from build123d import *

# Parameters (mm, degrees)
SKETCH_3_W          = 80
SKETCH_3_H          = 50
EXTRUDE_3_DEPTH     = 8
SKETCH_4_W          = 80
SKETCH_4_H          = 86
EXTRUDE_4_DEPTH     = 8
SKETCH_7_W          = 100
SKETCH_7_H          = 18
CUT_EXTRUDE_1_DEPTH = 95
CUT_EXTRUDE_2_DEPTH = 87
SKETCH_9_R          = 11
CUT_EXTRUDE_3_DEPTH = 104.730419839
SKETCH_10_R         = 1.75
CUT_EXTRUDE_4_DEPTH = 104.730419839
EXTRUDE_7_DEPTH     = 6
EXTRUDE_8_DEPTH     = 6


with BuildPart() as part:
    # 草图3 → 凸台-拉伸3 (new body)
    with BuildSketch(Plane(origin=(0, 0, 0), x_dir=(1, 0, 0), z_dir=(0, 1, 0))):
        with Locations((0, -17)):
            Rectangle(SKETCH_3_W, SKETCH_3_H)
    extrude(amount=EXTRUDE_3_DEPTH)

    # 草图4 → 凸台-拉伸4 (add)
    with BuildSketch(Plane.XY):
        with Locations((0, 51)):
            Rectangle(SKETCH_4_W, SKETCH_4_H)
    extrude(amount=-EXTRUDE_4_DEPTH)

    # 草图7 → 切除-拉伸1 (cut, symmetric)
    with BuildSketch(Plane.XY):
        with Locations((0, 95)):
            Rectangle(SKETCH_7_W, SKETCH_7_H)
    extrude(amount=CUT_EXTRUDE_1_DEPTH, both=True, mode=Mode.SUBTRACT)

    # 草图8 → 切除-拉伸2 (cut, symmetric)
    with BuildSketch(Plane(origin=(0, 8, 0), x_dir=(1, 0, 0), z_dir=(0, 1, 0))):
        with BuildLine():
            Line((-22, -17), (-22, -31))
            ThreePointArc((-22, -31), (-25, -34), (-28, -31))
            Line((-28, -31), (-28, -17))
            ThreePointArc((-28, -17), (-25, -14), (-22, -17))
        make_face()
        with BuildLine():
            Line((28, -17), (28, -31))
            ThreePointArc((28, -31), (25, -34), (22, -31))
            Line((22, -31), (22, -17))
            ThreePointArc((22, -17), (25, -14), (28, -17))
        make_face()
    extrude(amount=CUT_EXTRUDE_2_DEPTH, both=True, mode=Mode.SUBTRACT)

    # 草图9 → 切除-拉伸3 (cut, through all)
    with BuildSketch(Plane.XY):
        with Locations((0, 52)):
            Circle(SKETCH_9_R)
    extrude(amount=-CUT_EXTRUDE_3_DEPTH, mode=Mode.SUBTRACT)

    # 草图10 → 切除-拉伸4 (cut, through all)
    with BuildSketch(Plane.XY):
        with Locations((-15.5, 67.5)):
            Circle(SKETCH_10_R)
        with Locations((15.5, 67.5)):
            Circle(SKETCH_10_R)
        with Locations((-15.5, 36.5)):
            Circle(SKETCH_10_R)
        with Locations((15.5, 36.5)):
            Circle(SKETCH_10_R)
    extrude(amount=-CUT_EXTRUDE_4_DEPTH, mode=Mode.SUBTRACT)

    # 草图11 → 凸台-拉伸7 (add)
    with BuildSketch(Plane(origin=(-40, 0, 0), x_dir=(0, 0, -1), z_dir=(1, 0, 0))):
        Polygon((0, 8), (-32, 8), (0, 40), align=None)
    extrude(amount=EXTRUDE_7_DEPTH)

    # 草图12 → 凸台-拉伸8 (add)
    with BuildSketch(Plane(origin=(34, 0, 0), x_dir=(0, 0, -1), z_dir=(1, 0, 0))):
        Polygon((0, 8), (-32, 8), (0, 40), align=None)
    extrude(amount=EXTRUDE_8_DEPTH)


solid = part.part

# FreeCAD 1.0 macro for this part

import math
import FreeCAD as App
import Part
import Sketcher

doc = App.newDocument("Part")
body = doc.addObject("PartDesign::Body", "Body")

# Sketch on XZ plane
sketch1 = body.newObject("Sketcher::SketchObject", "Sketch")
sketch1.AttachmentSupport = (doc.getObject("XZ_Plane"), [""])
sketch1.MapMode = "FlatFace"
sketch1.addGeometry([
    Part.LineSegment(App.Vector(-40, -8, 0), App.Vector(-40, 42, 0)),
    Part.LineSegment(App.Vector(-40, 42, 0), App.Vector(40, 42, 0)),
    Part.LineSegment(App.Vector(40, 42, 0), App.Vector(40, -8, 0)),
    Part.LineSegment(App.Vector(40, -8, 0), App.Vector(-40, -8, 0)),
], False)
sketch1.addConstraint([
    Sketcher.Constraint("Coincident", 0, 2, 1, 1),
    Sketcher.Constraint("Coincident", 1, 2, 2, 1),
    Sketcher.Constraint("Coincident", 2, 2, 3, 1),
    Sketcher.Constraint("Coincident", 3, 2, 0, 1),
    Sketcher.Constraint("Vertical", 0),
    Sketcher.Constraint("Horizontal", 1),
    Sketcher.Constraint("Vertical", 2),
    Sketcher.Constraint("Horizontal", 3),
    Sketcher.Constraint("DistanceX", 1, 1, 1, 2, 80.0),
    Sketcher.Constraint("DistanceY", 0, 1, 0, 2, 50.0),
    Sketcher.Constraint("DistanceX", 0, 2, -1, 1, 40.0),
    Sketcher.Constraint("DistanceY", -1, 1, 0, 2, 42.0),
])
pad1 = body.newObject("PartDesign::Pad", "Pad")
pad1.Profile = sketch1
pad1.Length = 8
pad1.Reversed = True

# Sketch on XY plane
sketch2 = body.newObject("Sketcher::SketchObject", "Sketch001")
sketch2.AttachmentSupport = (doc.getObject("XY_Plane"), [""])
sketch2.MapMode = "FlatFace"
sketch2.addGeometry([
    Part.LineSegment(App.Vector(-40, 94, 0), App.Vector(-40, 8, 0)),
    Part.LineSegment(App.Vector(-40, 8, 0), App.Vector(40, 8, 0)),
    Part.LineSegment(App.Vector(40, 8, 0), App.Vector(40, 94, 0)),
    Part.LineSegment(App.Vector(40, 94, 0), App.Vector(-40, 94, 0)),
], False)
sketch2.addConstraint([
    Sketcher.Constraint("Coincident", 0, 2, 1, 1),
    Sketcher.Constraint("Coincident", 1, 2, 2, 1),
    Sketcher.Constraint("Coincident", 2, 2, 3, 1),
    Sketcher.Constraint("Coincident", 3, 2, 0, 1),
    Sketcher.Constraint("Vertical", 0),
    Sketcher.Constraint("Horizontal", 1),
    Sketcher.Constraint("Vertical", 2),
    Sketcher.Constraint("Horizontal", 3),
    Sketcher.Constraint("DistanceX", 1, 1, 1, 2, 80.0),
    Sketcher.Constraint("DistanceY", 0, 2, 0, 1, 86.0),
    Sketcher.Constraint("DistanceX", 0, 2, -1, 1, 40.0),
    Sketcher.Constraint("DistanceY", -1, 1, 0, 2, 8.0),
])
pad2 = body.newObject("PartDesign::Pad", "Pad001")
pad2.Profile = sketch2
pad2.Length = 8
pad2.Reversed = True

# Sketch on XY plane
sketch3 = body.newObject("Sketcher::SketchObject", "Sketch002")
sketch3.AttachmentSupport = (doc.getObject("XY_Plane"), [""])
sketch3.MapMode = "FlatFace"
sketch3.addGeometry([
    Part.LineSegment(App.Vector(-50, 104, 0), App.Vector(-50, 86, 0)),
    Part.LineSegment(App.Vector(-50, 86, 0), App.Vector(50, 86, 0)),
    Part.LineSegment(App.Vector(50, 86, 0), App.Vector(50, 104, 0)),
    Part.LineSegment(App.Vector(50, 104, 0), App.Vector(-50, 104, 0)),
], False)
sketch3.addConstraint([
    Sketcher.Constraint("Coincident", 0, 2, 1, 1),
    Sketcher.Constraint("Coincident", 1, 2, 2, 1),
    Sketcher.Constraint("Coincident", 2, 2, 3, 1),
    Sketcher.Constraint("Coincident", 3, 2, 0, 1),
    Sketcher.Constraint("Vertical", 0),
    Sketcher.Constraint("Horizontal", 1),
    Sketcher.Constraint("Vertical", 2),
    Sketcher.Constraint("Horizontal", 3),
    Sketcher.Constraint("DistanceX", 1, 1, 1, 2, 100.0),
    Sketcher.Constraint("DistanceY", 0, 2, 0, 1, 18.0),
    Sketcher.Constraint("DistanceX", 0, 2, -1, 1, 50.0),
    Sketcher.Constraint("DistanceY", -1, 1, 0, 2, 86.0),
])
pocket1 = body.newObject("PartDesign::Pocket", "Pocket")
pocket1.Profile = sketch3
pocket1.Length = 190
pocket1.Midplane = True

# Sketch on XZ plane
sketch4 = body.newObject("Sketcher::SketchObject", "Sketch003")
sketch4.AttachmentSupport = (doc.getObject("XZ_Plane"), [""])
sketch4.MapMode = "FlatFace"
sketch4.AttachmentOffset = App.Placement(App.Vector(0, 0, -8), App.Rotation())
sketch4.addGeometry([
    Part.LineSegment(App.Vector(-22, 31, 0), App.Vector(-22, 17, 0)),  # 0
    Part.ArcOfCircle(Part.Circle(App.Vector(-25, 17, 0), App.Vector(0, 0, 1), 3), math.radians(180), math.radians(360)),  # 1
    Part.LineSegment(App.Vector(-28, 17, 0), App.Vector(-28, 31, 0)),  # 2
    Part.ArcOfCircle(Part.Circle(App.Vector(-25, 31, 0), App.Vector(0, 0, 1), 3), math.radians(0), math.radians(180)),  # 3
    Part.LineSegment(App.Vector(28, 31, 0), App.Vector(28, 17, 0)),  # 4
    Part.ArcOfCircle(Part.Circle(App.Vector(25, 17, 0), App.Vector(0, 0, 1), 3), math.radians(180), math.radians(360)),  # 5
    Part.LineSegment(App.Vector(22, 17, 0), App.Vector(22, 31, 0)),  # 6
    Part.ArcOfCircle(Part.Circle(App.Vector(25, 31, 0), App.Vector(0, 0, 1), 3), math.radians(0), math.radians(180)),  # 7
], False)
sketch4.addConstraint([
    Sketcher.Constraint("Tangent", 0, 2, 1, 2),
    Sketcher.Constraint("Tangent", 1, 1, 2, 1),
    Sketcher.Constraint("Tangent", 2, 2, 3, 2),
    Sketcher.Constraint("Tangent", 3, 1, 0, 1),
    Sketcher.Constraint("Tangent", 4, 2, 5, 2),
    Sketcher.Constraint("Tangent", 5, 1, 6, 1),
    Sketcher.Constraint("Tangent", 6, 2, 7, 2),
    Sketcher.Constraint("Tangent", 7, 1, 4, 1),
    Sketcher.Constraint("Vertical", 0),
    Sketcher.Constraint("Vertical", 2),
    Sketcher.Constraint("Vertical", 4),
    Sketcher.Constraint("Vertical", 6),
    Sketcher.Constraint("Equal", 3, 5),
    Sketcher.Constraint("Symmetric", 1, 3, 5, 3, -2),
    Sketcher.Constraint("Horizontal", 3, 3, 7, 3),
    Sketcher.Constraint("Radius", 1, 3.0),
    Sketcher.Constraint("DistanceY", 0, 2, 0, 1, 14.0),
    Sketcher.Constraint("DistanceX", 1, 3, -1, 1, 25.0),
    Sketcher.Constraint("DistanceY", -1, 1, 1, 3, 17.0),
])
pocket2 = body.newObject("PartDesign::Pocket", "Pocket001")
pocket2.Profile = sketch4
pocket2.Length = 174
pocket2.Midplane = True

# Sketch on XY plane
sketch5 = body.newObject("Sketcher::SketchObject", "Sketch004")
sketch5.AttachmentSupport = (doc.getObject("XY_Plane"), [""])
sketch5.MapMode = "FlatFace"
sketch5.addGeometry(Part.Circle(App.Vector(0, 52, 0), App.Vector(0, 0, 1), 11), False)
sketch5.addConstraint([
    Sketcher.Constraint("PointOnObject", 0, 3, -2),
    Sketcher.Constraint("Diameter", 0, 22.0),
    Sketcher.Constraint("DistanceY", -1, 1, 0, 3, 52.0),
])
pocket3 = body.newObject("PartDesign::Pocket", "Pocket002")
pocket3.Profile = sketch5
pocket3.Type = "ThroughAll"

# Sketch on XY plane
sketch6 = body.newObject("Sketcher::SketchObject", "Sketch005")
sketch6.AttachmentSupport = (doc.getObject("XY_Plane"), [""])
sketch6.MapMode = "FlatFace"
sketch6.addGeometry([
    Part.Circle(App.Vector(-15.5, 67.5, 0), App.Vector(0, 0, 1), 1.8),
    Part.Circle(App.Vector(15.5, 67.5, 0), App.Vector(0, 0, 1), 1.8),
    Part.Circle(App.Vector(-15.5, 36.5, 0), App.Vector(0, 0, 1), 1.8),
    Part.Circle(App.Vector(15.5, 36.5, 0), App.Vector(0, 0, 1), 1.8),
], False)
sketch6.addConstraint([
    Sketcher.Constraint("Equal", 0, 1),
    Sketcher.Constraint("Equal", 1, 2),
    Sketcher.Constraint("Equal", 2, 3),
    Sketcher.Constraint("Symmetric", 0, 3, 1, 3, -2),
    Sketcher.Constraint("Symmetric", 2, 3, 3, 3, -2),
    Sketcher.Constraint("Vertical", 0, 3, 2, 3),
    Sketcher.Constraint("Diameter", 0, 3.5),
    Sketcher.Constraint("DistanceX", 0, 3, 1, 3, 31.0),
    Sketcher.Constraint("DistanceY", 2, 3, 0, 3, 31.0),
    Sketcher.Constraint("DistanceY", -1, 1, 0, 3, 67.5),
])
pocket4 = body.newObject("PartDesign::Pocket", "Pocket003")
pocket4.Profile = sketch6
pocket4.Type = "ThroughAll"

# Sketch on YZ plane
sketch7 = body.newObject("Sketcher::SketchObject", "Sketch006")
sketch7.AttachmentSupport = (doc.getObject("YZ_Plane"), [""])
sketch7.MapMode = "FlatFace"
sketch7.AttachmentOffset = App.Placement(App.Vector(0, 0, -40), App.Rotation())
sketch7.addGeometry([
    Part.LineSegment(App.Vector(8, 32, 0), App.Vector(8, 0, 0)),
    Part.LineSegment(App.Vector(8, 0, 0), App.Vector(40, 0, 0)),
    Part.LineSegment(App.Vector(40, 0, 0), App.Vector(8, 32, 0)),
], False)
sketch7.addConstraint([
    Sketcher.Constraint("Coincident", 0, 2, 1, 1),
    Sketcher.Constraint("Coincident", 1, 2, 2, 1),
    Sketcher.Constraint("Coincident", 2, 2, 0, 1),
    Sketcher.Constraint("Vertical", 0),
    Sketcher.Constraint("Horizontal", 1),
    Sketcher.Constraint("PointOnObject", 0, 2, -1),
    Sketcher.Constraint("Equal", 1, 0),
    Sketcher.Constraint("DistanceX", 1, 1, 1, 2, 32.0),
    Sketcher.Constraint("DistanceX", -1, 1, 0, 2, 8.0),
])
pad3 = body.newObject("PartDesign::Pad", "Pad002")
pad3.Profile = sketch7
pad3.Length = 6

# Sketch on YZ plane
sketch8 = body.newObject("Sketcher::SketchObject", "Sketch007")
sketch8.AttachmentSupport = (doc.getObject("YZ_Plane"), [""])
sketch8.MapMode = "FlatFace"
sketch8.AttachmentOffset = App.Placement(App.Vector(0, 0, 34), App.Rotation())
sketch8.addGeometry([
    Part.LineSegment(App.Vector(8, 32, 0), App.Vector(8, 0, 0)),
    Part.LineSegment(App.Vector(8, 0, 0), App.Vector(40, 0, 0)),
    Part.LineSegment(App.Vector(40, 0, 0), App.Vector(8, 32, 0)),
], False)
sketch8.addConstraint([
    Sketcher.Constraint("Coincident", 0, 2, 1, 1),
    Sketcher.Constraint("Coincident", 1, 2, 2, 1),
    Sketcher.Constraint("Coincident", 2, 2, 0, 1),
    Sketcher.Constraint("Vertical", 0),
    Sketcher.Constraint("Horizontal", 1),
    Sketcher.Constraint("PointOnObject", 0, 2, -1),
    Sketcher.Constraint("Equal", 1, 0),
    Sketcher.Constraint("DistanceX", 1, 1, 1, 2, 32.0),
    Sketcher.Constraint("DistanceX", -1, 1, 0, 2, 8.0),
])
pad4 = body.newObject("PartDesign::Pad", "Pad003")
pad4.Profile = sketch8
pad4.Length = 6

doc.recompute()
